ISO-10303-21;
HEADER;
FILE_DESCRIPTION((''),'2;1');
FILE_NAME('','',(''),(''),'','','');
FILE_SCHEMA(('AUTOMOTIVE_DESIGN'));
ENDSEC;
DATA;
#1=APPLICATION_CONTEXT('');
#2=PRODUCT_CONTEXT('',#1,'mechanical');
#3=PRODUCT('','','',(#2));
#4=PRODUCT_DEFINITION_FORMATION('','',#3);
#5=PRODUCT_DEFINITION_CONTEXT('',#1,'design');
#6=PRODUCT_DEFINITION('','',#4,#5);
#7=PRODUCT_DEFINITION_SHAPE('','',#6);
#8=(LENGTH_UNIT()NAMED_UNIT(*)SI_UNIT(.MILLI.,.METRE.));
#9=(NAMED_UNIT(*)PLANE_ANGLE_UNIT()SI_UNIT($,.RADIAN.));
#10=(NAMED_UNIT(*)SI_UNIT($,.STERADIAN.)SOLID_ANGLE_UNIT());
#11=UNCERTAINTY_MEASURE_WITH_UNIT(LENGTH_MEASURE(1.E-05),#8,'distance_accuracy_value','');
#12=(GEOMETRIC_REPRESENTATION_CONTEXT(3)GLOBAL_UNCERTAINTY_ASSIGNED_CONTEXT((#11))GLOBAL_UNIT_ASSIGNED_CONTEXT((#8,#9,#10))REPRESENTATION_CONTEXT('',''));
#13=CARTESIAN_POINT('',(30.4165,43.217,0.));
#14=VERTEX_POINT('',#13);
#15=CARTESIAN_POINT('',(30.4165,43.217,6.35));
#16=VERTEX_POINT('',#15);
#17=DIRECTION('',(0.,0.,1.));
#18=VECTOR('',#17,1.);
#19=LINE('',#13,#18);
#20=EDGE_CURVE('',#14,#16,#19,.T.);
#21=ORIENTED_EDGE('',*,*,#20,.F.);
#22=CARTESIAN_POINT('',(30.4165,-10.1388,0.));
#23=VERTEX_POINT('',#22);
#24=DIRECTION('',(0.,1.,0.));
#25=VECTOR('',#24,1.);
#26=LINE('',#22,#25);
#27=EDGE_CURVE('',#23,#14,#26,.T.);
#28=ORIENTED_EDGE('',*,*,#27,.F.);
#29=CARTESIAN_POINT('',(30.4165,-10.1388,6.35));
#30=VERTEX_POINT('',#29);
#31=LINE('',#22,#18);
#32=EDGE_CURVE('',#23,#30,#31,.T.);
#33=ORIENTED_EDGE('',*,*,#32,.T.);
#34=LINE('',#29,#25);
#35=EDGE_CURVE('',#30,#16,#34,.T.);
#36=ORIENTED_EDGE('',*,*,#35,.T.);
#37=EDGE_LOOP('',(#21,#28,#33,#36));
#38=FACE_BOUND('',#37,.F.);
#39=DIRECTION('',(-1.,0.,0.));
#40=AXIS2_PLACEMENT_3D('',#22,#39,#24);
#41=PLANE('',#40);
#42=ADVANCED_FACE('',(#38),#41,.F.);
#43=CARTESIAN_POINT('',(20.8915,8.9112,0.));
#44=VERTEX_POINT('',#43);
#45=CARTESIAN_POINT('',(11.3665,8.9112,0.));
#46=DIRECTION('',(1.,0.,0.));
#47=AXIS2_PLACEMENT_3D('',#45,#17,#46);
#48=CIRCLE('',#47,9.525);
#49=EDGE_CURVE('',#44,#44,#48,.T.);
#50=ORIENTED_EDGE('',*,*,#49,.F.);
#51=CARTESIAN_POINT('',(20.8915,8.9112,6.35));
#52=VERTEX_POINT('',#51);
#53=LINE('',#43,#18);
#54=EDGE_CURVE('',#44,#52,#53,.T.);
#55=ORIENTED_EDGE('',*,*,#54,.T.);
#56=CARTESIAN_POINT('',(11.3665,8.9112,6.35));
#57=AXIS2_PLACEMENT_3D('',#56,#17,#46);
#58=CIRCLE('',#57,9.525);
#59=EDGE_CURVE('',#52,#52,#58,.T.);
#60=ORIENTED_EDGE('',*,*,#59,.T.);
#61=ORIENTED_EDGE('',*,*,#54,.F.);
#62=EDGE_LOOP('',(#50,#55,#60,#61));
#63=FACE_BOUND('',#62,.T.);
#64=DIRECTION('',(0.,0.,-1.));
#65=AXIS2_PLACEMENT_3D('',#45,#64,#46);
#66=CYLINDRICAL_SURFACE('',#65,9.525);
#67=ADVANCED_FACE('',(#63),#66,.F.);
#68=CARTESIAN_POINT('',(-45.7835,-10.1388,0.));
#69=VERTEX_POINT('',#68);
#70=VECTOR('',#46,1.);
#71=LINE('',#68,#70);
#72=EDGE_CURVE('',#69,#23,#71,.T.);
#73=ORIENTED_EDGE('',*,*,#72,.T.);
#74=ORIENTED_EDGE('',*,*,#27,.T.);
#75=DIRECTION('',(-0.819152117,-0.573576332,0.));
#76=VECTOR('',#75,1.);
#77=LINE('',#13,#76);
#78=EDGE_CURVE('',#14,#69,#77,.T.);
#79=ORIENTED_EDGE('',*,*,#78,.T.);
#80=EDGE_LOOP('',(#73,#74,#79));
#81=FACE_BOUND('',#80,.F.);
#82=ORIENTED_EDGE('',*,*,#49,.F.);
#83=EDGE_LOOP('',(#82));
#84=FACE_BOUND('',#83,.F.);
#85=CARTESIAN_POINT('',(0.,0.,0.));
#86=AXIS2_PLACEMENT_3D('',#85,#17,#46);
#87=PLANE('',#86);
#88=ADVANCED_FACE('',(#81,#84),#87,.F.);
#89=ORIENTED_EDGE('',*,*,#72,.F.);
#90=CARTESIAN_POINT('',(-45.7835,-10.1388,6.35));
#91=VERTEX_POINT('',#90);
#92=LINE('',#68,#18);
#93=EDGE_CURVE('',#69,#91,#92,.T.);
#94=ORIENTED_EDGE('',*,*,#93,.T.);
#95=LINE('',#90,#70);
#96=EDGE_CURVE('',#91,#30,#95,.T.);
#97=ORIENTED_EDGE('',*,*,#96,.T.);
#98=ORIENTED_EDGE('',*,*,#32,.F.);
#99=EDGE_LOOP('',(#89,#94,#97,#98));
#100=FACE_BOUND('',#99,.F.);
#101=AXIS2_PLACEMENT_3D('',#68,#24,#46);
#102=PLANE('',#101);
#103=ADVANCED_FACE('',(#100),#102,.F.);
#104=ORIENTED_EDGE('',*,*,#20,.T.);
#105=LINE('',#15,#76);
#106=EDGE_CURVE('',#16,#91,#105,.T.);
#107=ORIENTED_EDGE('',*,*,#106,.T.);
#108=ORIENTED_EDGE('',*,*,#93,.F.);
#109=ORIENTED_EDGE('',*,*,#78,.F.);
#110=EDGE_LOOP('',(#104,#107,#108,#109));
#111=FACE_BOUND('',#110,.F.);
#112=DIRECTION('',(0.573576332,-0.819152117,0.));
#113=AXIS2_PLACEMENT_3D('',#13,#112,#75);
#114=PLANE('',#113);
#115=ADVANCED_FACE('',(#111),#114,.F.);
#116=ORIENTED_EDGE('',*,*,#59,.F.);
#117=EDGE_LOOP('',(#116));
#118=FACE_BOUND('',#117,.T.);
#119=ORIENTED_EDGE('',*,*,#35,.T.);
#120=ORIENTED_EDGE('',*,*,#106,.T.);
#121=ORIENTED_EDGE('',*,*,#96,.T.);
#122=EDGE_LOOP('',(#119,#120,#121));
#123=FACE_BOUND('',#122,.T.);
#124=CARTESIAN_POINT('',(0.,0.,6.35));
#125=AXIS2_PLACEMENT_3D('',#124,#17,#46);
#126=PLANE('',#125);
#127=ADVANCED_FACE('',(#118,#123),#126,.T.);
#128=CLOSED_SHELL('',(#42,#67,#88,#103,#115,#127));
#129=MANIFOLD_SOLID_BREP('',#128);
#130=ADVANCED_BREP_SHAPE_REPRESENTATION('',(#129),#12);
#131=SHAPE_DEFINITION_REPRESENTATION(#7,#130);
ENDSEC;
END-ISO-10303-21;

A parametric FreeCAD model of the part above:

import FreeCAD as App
import Part
import Sketcher
Q = App.Units.Quantity


def add_polygon(sketch, points):
    """Adds a closed chain of lines whose ends are joined by coincident constraints."""
    first, n = sketch.GeometryCount, len(points)
    for a, b in zip(points, points[1:] + points[:1]):
        sketch.addGeometry(Part.LineSegment(App.Vector(*a, 0), App.Vector(*b, 0)), False)
    for i in range(n):
        sketch.addConstraint(Sketcher.Constraint("Coincident", first + i, 2, first + (i + 1) % n, 1))

doc = App.newDocument("Part")
params = doc.addObject("Spreadsheet::Sheet", "Params")
for row, (alias, value) in enumerate([
    ("sketch1_diameter", "0.75 in"),
    ("sketch1_width", "3 in"),
    ("pad1_length", "0.25 in"),
], start=1):
    params.set(f"A{row}", alias)
    params.set(f"B{row}", "=" + value)
    params.setAlias(f"B{row}", alias)

body = doc.addObject("PartDesign::Body", "Body")

sketch1 = body.newObject("Sketcher::SketchObject", "Sketch")
sketch1.AttachmentSupport = (doc.getObject("XY_Plane"), [""])
sketch1.MapMode = "FlatFace"
add_polygon(sketch1, [(30.4165, 43.217), (-45.7835, -10.1388), (30.4165, -10.1388)])
sketch1.addGeometry(Part.Circle(App.Vector(11.3665, 8.9112, 0), App.Vector(0, 0, 1), 9.525), False)
sketch1.addConstraint([
    Sketcher.Constraint("Horizontal", 1),
    Sketcher.Constraint("Vertical", 2),
    Sketcher.Constraint("Diameter", 3, Q("0.75 in")),
    Sketcher.Constraint("DistanceX", 1, 1, 1, 2, Q("3 in")),
    Sketcher.Constraint("DistanceY", 0, 2, 3, 3, Q("0.75 in")),
    Sketcher.Constraint("DistanceX", 3, 3, 1, 2, Q("0.75 in")),
    Sketcher.Constraint("Angle", 0, Q("-145 deg")),
    Sketcher.Constraint("DistanceX", -1, 1, 3, 3, Q("0.4475 in")),
    Sketcher.Constraint("DistanceY", -1, 1, 3, 3, Q("8.9112 mm")),
])
sketch1.setExpression("Constraints[5]", "Params.sketch1_diameter")
sketch1.setExpression("Constraints[6]", "Params.sketch1_width")
pad1 = body.newObject("PartDesign::Pad", "Pad")
pad1.Profile = sketch1
pad1.setExpression("Length", "Params.pad1_length")

doc.recompute()
